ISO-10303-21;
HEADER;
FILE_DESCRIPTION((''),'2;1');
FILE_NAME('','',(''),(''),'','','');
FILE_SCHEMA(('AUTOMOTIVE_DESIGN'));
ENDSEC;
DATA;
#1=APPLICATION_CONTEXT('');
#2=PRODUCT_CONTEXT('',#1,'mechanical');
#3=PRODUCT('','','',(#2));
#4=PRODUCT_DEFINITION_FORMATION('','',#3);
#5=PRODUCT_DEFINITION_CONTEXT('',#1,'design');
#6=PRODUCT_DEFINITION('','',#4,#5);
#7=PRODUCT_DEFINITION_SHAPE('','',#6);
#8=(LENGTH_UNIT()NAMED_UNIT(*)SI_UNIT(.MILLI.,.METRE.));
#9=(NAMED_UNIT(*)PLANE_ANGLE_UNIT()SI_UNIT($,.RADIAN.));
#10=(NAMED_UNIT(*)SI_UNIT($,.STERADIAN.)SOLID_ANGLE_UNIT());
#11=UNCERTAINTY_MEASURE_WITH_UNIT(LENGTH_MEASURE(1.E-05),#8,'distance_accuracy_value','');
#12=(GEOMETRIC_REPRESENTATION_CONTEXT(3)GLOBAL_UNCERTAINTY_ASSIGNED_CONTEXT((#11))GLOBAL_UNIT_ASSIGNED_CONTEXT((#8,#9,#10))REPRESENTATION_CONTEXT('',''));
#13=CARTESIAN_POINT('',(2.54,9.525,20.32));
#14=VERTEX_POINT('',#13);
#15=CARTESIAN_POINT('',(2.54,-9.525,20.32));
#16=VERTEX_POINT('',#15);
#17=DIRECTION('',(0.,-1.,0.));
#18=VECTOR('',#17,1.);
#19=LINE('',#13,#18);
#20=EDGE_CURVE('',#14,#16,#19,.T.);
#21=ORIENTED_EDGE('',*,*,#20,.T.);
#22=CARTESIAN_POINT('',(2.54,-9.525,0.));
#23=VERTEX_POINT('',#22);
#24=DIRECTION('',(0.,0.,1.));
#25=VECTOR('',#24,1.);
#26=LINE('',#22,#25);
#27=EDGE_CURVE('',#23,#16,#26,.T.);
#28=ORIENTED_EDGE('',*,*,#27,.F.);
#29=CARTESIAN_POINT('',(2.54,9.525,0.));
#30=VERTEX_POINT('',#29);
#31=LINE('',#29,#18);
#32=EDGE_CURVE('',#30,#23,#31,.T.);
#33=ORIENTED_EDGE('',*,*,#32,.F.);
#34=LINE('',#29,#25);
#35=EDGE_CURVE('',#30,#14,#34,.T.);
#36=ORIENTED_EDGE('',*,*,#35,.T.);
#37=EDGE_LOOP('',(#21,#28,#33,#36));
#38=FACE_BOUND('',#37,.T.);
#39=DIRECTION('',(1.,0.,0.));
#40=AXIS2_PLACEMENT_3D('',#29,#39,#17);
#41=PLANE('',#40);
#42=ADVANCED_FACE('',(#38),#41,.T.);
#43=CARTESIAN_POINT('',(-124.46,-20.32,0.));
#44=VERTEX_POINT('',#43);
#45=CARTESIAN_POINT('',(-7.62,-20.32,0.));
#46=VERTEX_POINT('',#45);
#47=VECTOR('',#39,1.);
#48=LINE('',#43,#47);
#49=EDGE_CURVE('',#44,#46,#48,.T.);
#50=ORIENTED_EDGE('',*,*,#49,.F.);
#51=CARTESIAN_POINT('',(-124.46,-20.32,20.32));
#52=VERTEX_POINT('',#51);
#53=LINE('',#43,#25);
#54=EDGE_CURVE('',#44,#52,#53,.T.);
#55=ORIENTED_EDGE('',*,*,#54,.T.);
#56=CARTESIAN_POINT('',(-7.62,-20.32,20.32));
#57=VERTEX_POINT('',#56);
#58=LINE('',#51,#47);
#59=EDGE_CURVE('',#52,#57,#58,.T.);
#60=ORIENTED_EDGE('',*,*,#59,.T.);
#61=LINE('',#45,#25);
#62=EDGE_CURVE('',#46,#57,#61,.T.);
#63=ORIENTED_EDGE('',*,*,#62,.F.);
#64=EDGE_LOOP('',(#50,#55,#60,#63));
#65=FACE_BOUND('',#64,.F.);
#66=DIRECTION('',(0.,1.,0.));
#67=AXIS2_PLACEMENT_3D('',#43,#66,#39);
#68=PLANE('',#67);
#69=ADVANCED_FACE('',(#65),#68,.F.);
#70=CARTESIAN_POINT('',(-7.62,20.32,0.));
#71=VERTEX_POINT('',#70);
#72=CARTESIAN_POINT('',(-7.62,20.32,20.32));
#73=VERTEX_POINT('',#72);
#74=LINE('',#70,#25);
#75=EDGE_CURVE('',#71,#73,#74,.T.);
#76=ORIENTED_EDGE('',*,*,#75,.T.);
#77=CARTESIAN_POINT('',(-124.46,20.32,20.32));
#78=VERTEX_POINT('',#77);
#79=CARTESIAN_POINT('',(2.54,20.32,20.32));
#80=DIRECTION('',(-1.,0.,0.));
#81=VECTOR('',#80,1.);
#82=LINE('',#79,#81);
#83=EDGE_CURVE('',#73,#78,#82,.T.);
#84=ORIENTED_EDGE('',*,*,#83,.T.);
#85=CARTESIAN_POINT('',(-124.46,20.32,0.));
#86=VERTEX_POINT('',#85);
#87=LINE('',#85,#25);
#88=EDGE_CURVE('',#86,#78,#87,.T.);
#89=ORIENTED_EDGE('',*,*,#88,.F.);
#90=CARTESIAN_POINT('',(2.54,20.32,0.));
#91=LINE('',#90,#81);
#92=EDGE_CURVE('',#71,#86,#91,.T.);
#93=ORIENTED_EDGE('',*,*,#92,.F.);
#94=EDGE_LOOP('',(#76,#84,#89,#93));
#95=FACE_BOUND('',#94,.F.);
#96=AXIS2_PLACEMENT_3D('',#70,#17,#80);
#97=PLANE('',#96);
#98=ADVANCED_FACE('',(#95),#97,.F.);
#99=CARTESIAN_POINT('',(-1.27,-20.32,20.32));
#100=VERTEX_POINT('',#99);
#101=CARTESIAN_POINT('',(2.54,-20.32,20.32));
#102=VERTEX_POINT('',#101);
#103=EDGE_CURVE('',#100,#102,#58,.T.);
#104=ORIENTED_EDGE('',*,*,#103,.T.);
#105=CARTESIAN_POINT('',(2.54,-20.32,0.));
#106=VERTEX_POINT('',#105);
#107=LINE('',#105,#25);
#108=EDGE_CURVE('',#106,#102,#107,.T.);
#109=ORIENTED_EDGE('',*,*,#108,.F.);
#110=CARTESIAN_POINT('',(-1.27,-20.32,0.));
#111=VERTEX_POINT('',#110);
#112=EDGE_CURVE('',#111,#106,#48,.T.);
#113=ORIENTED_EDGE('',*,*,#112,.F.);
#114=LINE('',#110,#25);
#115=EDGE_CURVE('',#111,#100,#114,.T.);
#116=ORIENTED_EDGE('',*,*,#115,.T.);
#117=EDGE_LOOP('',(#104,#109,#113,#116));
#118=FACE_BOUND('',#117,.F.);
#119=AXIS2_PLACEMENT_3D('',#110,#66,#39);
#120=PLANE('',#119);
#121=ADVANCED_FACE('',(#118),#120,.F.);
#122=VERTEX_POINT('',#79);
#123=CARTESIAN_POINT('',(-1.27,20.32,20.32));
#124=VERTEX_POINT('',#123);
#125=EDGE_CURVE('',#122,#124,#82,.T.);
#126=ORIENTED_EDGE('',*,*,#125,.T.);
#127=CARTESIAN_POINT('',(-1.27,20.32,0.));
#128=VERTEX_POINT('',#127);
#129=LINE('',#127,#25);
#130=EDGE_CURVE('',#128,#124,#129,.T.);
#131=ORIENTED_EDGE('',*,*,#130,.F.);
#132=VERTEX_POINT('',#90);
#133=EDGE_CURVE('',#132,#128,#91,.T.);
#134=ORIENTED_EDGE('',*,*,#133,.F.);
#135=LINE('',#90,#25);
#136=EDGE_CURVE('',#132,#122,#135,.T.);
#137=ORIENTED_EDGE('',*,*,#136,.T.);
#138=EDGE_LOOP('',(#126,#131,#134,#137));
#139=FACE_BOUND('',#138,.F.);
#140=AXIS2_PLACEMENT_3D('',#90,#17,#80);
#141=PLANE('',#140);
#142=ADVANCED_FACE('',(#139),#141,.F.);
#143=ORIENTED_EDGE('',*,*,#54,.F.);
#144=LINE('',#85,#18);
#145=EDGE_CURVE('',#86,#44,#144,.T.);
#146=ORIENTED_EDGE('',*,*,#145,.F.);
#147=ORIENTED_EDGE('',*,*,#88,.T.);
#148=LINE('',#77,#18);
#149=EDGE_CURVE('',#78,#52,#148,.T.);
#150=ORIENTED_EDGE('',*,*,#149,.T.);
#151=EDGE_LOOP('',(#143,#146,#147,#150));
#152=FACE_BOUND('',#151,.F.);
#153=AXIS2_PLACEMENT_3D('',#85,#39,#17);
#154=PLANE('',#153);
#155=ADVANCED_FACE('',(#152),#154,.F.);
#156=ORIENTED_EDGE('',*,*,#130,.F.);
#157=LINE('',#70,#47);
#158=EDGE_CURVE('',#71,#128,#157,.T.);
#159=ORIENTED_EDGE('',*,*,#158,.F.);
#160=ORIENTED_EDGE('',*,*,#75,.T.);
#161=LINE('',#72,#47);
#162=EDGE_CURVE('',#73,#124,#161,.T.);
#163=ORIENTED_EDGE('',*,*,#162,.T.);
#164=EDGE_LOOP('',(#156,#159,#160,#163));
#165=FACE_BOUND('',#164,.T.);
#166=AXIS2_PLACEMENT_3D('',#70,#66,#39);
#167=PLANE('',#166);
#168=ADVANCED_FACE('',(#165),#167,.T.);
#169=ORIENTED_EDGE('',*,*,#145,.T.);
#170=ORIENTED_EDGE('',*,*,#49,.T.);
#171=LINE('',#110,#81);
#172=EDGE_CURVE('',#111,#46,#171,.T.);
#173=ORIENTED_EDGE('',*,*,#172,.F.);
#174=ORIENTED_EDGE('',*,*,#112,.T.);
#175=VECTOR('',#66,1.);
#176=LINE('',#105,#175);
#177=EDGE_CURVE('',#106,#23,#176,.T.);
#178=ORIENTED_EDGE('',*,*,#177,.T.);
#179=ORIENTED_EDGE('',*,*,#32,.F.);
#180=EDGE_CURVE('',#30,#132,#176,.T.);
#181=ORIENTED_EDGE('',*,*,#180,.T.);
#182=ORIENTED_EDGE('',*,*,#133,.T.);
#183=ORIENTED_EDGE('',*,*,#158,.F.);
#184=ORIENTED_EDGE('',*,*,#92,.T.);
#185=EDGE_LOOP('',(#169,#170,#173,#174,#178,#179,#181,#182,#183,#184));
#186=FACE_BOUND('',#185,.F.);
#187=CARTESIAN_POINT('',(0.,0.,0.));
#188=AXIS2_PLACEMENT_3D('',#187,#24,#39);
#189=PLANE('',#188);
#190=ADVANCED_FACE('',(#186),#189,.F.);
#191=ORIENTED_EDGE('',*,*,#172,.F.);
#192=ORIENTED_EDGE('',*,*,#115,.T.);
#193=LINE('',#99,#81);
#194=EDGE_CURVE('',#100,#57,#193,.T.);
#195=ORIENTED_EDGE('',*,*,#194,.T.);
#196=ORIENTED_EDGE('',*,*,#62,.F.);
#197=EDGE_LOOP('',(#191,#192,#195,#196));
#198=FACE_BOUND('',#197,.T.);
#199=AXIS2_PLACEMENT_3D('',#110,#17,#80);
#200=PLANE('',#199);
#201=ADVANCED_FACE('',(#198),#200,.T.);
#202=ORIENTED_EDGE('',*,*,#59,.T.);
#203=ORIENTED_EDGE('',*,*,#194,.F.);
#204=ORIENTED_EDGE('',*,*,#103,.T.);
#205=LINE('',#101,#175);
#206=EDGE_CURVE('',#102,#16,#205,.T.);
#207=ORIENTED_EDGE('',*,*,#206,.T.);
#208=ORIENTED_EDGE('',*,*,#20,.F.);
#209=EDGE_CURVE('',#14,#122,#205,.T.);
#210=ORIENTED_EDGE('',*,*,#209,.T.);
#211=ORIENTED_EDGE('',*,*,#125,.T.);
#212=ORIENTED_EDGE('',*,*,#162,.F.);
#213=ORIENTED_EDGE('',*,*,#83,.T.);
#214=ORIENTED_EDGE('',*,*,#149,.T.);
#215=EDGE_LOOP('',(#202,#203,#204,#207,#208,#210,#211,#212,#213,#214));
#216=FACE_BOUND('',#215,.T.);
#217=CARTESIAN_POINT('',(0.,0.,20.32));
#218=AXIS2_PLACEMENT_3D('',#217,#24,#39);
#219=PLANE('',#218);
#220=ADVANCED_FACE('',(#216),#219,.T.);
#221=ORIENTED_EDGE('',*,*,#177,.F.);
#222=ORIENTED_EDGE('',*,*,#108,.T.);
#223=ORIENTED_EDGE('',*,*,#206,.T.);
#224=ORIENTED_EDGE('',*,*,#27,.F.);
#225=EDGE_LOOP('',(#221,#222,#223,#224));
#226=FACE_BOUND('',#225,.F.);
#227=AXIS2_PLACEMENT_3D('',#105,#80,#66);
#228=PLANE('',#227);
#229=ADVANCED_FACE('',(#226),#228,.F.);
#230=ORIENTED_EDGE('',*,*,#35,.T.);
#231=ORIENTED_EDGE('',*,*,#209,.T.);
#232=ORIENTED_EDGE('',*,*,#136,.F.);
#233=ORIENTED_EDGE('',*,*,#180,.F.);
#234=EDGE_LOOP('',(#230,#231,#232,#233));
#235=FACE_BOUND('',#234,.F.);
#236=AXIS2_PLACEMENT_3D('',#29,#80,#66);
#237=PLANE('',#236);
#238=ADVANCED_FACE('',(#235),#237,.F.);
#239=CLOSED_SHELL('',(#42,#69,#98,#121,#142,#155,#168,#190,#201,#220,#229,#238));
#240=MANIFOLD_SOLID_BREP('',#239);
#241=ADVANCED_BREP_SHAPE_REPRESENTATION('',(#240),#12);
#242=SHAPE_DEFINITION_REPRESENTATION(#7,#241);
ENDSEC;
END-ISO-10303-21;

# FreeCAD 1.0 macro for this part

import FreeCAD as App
import Part
import Sketcher
from FreeCAD import Vector
Q = App.Units.Quantity

doc = App.newDocument("Part")
body = doc.addObject("PartDesign::Body", "Body")

sketch1 = doc.addObject("Sketcher::SketchObject", "Sketch")
body.addObject(sketch1)
sketch1.AttachmentSupport = (doc.XY_Plane, [""])
sketch1.MapMode = "FlatFace"
sketch1.addGeometry(Part.LineSegment(Vector(2.54, 20.32, 0), Vector(-124.46, 20.32, 0)), False)
sketch1.addGeometry(Part.LineSegment(Vector(-124.46, 20.32, 0), Vector(-124.46, -20.32, 0)), False)
sketch1.addGeometry(Part.LineSegment(Vector(-124.46, -20.32, 0), Vector(2.54, -20.32, 0)), False)
sketch1.addGeometry(Part.LineSegment(Vector(2.54, -20.32, 0), Vector(2.54, 20.32, 0)), False)
sketch1.addConstraint(Sketcher.Constraint("Coincident", 0, 2, 1, 1))
sketch1.addConstraint(Sketcher.Constraint("Coincident", 1, 2, 2, 1))
sketch1.addConstraint(Sketcher.Constraint("Coincident", 2, 2, 3, 1))
sketch1.addConstraint(Sketcher.Constraint("Coincident", 3, 2, 0, 1))
sketch1.addConstraint(Sketcher.Constraint("Horizontal", 0))
sketch1.addConstraint(Sketcher.Constraint("Vertical", 1))
sketch1.addConstraint(Sketcher.Constraint("Horizontal", 2))
sketch1.addConstraint(Sketcher.Constraint("Vertical", 3))
sketch1.addConstraint(Sketcher.Constraint("DistanceX", 0, 2, 0, 1, Q("5 in")))
sketch1.addConstraint(Sketcher.Constraint("DistanceY", 1, 2, 1, 1, Q("1.6 in")))
sketch1.addConstraint(Sketcher.Constraint("DistanceX", 0, 2, -1, 1, Q("4.9 in")))
sketch1.addConstraint(Sketcher.Constraint("DistanceY", -1, 1, 0, 2, Q("0.8 in")))
pad1 = doc.addObject("PartDesign::Pad", "Pad")
body.addObject(pad1)
pad1.Profile = sketch1
pad1.Length = Q("0.8 in")

doc.recompute()
